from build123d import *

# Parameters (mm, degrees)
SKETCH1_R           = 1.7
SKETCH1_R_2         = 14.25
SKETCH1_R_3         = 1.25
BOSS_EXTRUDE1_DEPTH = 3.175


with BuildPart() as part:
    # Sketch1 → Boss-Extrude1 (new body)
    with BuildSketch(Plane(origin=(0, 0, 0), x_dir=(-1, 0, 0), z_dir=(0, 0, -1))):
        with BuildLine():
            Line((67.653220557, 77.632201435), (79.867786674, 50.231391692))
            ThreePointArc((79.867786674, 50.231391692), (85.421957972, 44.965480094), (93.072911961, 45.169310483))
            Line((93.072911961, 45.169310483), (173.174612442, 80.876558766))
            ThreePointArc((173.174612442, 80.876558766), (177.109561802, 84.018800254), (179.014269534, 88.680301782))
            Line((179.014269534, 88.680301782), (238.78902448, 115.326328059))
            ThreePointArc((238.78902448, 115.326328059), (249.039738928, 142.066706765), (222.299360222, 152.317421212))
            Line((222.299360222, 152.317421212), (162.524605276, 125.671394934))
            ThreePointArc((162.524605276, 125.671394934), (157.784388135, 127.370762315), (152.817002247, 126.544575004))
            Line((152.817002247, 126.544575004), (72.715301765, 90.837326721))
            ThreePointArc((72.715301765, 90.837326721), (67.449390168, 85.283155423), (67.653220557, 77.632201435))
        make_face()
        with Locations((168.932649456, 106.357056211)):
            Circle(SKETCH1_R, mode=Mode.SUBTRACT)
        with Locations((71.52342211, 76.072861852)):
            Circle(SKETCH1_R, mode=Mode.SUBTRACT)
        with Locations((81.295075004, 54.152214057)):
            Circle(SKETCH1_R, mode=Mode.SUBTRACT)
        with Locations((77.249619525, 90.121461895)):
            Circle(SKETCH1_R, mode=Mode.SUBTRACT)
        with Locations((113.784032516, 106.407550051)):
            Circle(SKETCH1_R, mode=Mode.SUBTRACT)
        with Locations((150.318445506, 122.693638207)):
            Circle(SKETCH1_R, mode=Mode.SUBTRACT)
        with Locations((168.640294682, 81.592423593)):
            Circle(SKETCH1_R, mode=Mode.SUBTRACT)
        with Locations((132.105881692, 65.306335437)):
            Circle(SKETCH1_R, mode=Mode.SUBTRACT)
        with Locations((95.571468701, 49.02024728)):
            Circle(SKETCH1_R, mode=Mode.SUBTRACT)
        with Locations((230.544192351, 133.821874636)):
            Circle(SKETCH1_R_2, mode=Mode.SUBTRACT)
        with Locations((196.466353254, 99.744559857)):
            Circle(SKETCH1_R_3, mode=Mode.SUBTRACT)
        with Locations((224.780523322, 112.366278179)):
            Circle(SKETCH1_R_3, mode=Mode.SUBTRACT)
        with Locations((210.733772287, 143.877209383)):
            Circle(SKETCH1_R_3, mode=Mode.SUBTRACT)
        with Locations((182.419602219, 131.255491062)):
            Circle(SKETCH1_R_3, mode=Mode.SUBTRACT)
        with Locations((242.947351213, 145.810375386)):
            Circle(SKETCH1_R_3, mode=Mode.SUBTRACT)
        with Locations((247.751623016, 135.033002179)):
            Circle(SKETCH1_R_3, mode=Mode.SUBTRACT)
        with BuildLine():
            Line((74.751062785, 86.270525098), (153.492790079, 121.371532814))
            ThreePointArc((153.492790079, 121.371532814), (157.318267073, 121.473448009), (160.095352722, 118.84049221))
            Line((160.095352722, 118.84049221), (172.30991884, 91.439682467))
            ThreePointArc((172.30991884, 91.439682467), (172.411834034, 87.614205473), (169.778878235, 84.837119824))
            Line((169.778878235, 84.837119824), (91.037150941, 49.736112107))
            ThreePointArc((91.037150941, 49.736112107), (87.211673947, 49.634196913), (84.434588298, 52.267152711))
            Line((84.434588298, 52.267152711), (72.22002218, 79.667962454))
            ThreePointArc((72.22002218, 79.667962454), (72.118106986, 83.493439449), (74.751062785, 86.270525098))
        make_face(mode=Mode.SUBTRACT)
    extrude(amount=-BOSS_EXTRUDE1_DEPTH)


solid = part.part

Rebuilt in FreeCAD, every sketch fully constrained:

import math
import FreeCAD as App
import Part
import Sketcher

V = App.Vector

doc = App.newDocument("Part")
params = doc.addObject("Spreadsheet::Sheet", "Params")
for row, (alias, value) in enumerate([
    ("sketch1_radius", "10 mm"),
    ("sketch1_radius2", "5 mm"),
    ("sketch1_diameter", "3.4 mm"),
    ("sketch1_diameter2", "2.5 mm"),
    ("sketch1_diameter3", "28.5 mm"),
    ("pad1_length", "3.175 mm"),
], start=1):
    params.set(f"A{row}", alias)
    params.set(f"B{row}", "=" + value)
    params.setAlias(f"B{row}", alias)

body = doc.addObject("PartDesign::Body", "Body")

# Sketch on XY plane
sketch1 = doc.addObject("Sketcher::SketchObject", "Sketch")
body.addObject(sketch1)
sketch1.AttachmentSupport = (doc.XY_Plane, [""])
sketch1.MapMode = "FlatFace"
sketch1.addGeometry([
    Part.LineSegment(V(-67.7, 77.6, 0), V(-79.9, 50.2, 0)),  # 0
    Part.ArcOfCircle(Part.Circle(V(-89, 54.3, 0), V(0, 0, 1), 10), math.radians(-114), math.radians(-24)),  # 1
    Part.LineSegment(V(-93.1, 45.2, 0), V(-173.2, 80.9, 0)),  # 2
    Part.ArcOfCircle(Part.Circle(V(-169.1, 90, 0), V(0, 0, 1), 10), math.radians(-172), math.radians(-114)),  # 3
    Part.LineSegment(V(-179, 88.7, 0), V(-238.8, 115.3, 0)),  # 4
    Part.ArcOfCircle(Part.Circle(V(-230.5, 133.8, 0), V(0, 0, 1), 20.2), math.radians(66), math.radians(246)),  # 5
    Part.LineSegment(V(-222.3, 152.3, 0), V(-162.5, 125.7, 0)),  # 6
    Part.ArcOfCircle(Part.Circle(V(-156.9, 117.4, 0), V(0, 0, 1), 10), math.radians(66), math.radians(124)),  # 7
    Part.LineSegment(V(-152.8, 126.5, 0), V(-72.7, 90.8, 0)),  # 8
    Part.ArcOfCircle(Part.Circle(V(-76.8, 81.7, 0), V(0, 0, 1), 10), math.radians(-24), math.radians(66)),  # 9
    Part.Circle(V(-81.3, 54.2, 0), V(0, 0, 1), 1.7),  # 10
    Part.Circle(V(-95.6, 49, 0), V(0, 0, 1), 1.7),  # 11
    Part.Circle(V(-132.1, 65.3, 0), V(0, 0, 1), 1.7),  # 12
    Part.Circle(V(-71.5, 76.1, 0), V(0, 0, 1), 1.7),  # 13
    Part.Circle(V(-77.2, 90.1, 0), V(0, 0, 1), 1.7),  # 14
    Part.ArcOfCircle(Part.Circle(V(-76.8, 81.7, 0), V(0, 0, 1), 5), math.radians(-24), math.radians(66)),  # 15
    Part.LineSegment(V(-74.8, 86.3, 0), V(-153.5, 121.4, 0)),  # 16
    Part.ArcOfCircle(Part.Circle(V(-155.5, 116.8, 0), V(0, 0, 1), 5), math.radians(66), math.radians(156)),  # 17
    Part.LineSegment(V(-160.1, 118.8, 0), V(-172.3, 91.4, 0)),  # 18
    Part.ArcOfCircle(Part.Circle(V(-167.7, 89.4, 0), V(0, 0, 1), 5), math.radians(156), math.radians(246)),  # 19
    Part.LineSegment(V(-169.8, 84.8, 0), V(-91, 49.7, 0)),  # 20
    Part.ArcOfCircle(Part.Circle(V(-89, 54.3, 0), V(0, 0, 1), 5), math.radians(-114), math.radians(-24)),  # 21
    Part.LineSegment(V(-84.4, 52.3, 0), V(-72.2, 79.7, 0)),  # 22
    Part.Circle(V(-168.6, 81.6, 0), V(0, 0, 1), 1.7),  # 23
    Part.Circle(V(-113.8, 106.4, 0), V(0, 0, 1), 1.7),  # 24
    Part.Circle(V(-150.3, 122.7, 0), V(0, 0, 1), 1.7),  # 25
    Part.Circle(V(-168.9, 106.4, 0), V(0, 0, 1), 1.7),  # 26
    Part.Circle(V(-196.5, 99.7, 0), V(0, 0, 1), 1.2),  # 27
    Part.Circle(V(-224.8, 112.4, 0), V(0, 0, 1), 1.2),  # 28
    Part.Circle(V(-182.4, 131.3, 0), V(0, 0, 1), 1.2),  # 29
    Part.Circle(V(-230.5, 133.8, 0), V(0, 0, 1), 14.2),  # 30
    Part.Circle(V(-247.8, 135, 0), V(0, 0, 1), 1.2),  # 31
    Part.Circle(V(-210.7, 143.9, 0), V(0, 0, 1), 1.2),  # 32
    Part.Circle(V(-242.9, 145.8, 0), V(0, 0, 1), 1.2),  # 33
], False)
sketch1.addConstraint([
    Sketcher.Constraint("Tangent", 0, 2, 1, 2),
    Sketcher.Constraint("Tangent", 1, 1, 2, 1),
    Sketcher.Constraint("Tangent", 2, 2, 3, 2),
    Sketcher.Constraint("Coincident", 3, 1, 4, 1),
    Sketcher.Constraint("Tangent", 4, 2, 5, 2),
    Sketcher.Constraint("Tangent", 5, 1, 6, 1),
    Sketcher.Constraint("Coincident", 6, 2, 7, 2),
    Sketcher.Constraint("Tangent", 7, 1, 8, 1),
    Sketcher.Constraint("Tangent", 8, 2, 9, 2),
    Sketcher.Constraint("Tangent", 9, 1, 0, 1),
    Sketcher.Constraint("Tangent", 15, 2, 16, 1),
    Sketcher.Constraint("Tangent", 16, 2, 17, 1),
    Sketcher.Constraint("Tangent", 17, 2, 18, 1),
    Sketcher.Constraint("Tangent", 18, 2, 19, 1),
    Sketcher.Constraint("Tangent", 19, 2, 20, 1),
    Sketcher.Constraint("Tangent", 20, 2, 21, 1),
    Sketcher.Constraint("Tangent", 21, 2, 22, 1),
    Sketcher.Constraint("Tangent", 22, 2, 15, 1),
    Sketcher.Constraint("Coincident", 15, 3, 9, 3),
    Sketcher.Constraint("Coincident", 21, 3, 1, 3),
    Sketcher.Constraint("Coincident", 30, 3, 5, 3),
    Sketcher.Constraint("Equal", 1, 3),
    Sketcher.Constraint("Equal", 3, 7),
    Sketcher.Constraint("Equal", 7, 9),
    Sketcher.Constraint("Equal", 10, 11),
    Sketcher.Constraint("Equal", 11, 12),
    Sketcher.Constraint("Equal", 12, 13),
    Sketcher.Constraint("Equal", 13, 14),
    Sketcher.Constraint("Equal", 15, 17),
    Sketcher.Constraint("Equal", 17, 19),
    Sketcher.Constraint("Equal", 19, 21),
    Sketcher.Constraint("Equal", 14, 23),
    Sketcher.Constraint("Equal", 23, 24),
    Sketcher.Constraint("Equal", 24, 25),
    Sketcher.Constraint("Equal", 25, 26),
    Sketcher.Constraint("Equal", 27, 28),
    Sketcher.Constraint("Equal", 28, 29),
    Sketcher.Constraint("Equal", 29, 31),
    Sketcher.Constraint("Equal", 31, 32),
    Sketcher.Constraint("Equal", 32, 33),
    Sketcher.Constraint("Perpendicular", 0, 2),
    Sketcher.Constraint("Parallel", 2, 4),
    Sketcher.Constraint("Parallel", 4, 6),
    Sketcher.Constraint("Parallel", 6, 8),
    Sketcher.Constraint("Parallel", 8, 16),
    Sketcher.Constraint("Perpendicular", 16, 18),
    Sketcher.Constraint("Perpendicular", 18, 20),
    Sketcher.Constraint("Equal", 4, 6),
    Sketcher.Constraint("Equal", 2, 8),
    Sketcher.Constraint("Radius", 1, 10.0),
    Sketcher.Constraint("Radius", 15, 5.0),
    Sketcher.Constraint("Diameter", 10, 3.4),
    Sketcher.Constraint("Diameter", 27, 2.5),
    Sketcher.Constraint("Diameter", 30, 28.5),
    Sketcher.Constraint("Radius", 5, 20.25),
    Sketcher.Constraint("Distance", 0, 30.0),
    Sketcher.Constraint("Distance", 2, 87.7),
    Sketcher.Constraint("DistanceY", 2, 2, 27, 3, 18.868001),
    Sketcher.Constraint("DistanceY", -1, 1, 3, 1, 88.680302),
    Sketcher.Constraint("DistanceX", 8, 2, -1, 1, 72.715302),
    Sketcher.Constraint("DistanceY", -1, 1, 9, 1, 77.632201),
    Sketcher.Constraint("DistanceX", 5, 3, 3, 3, 61.441102),
    Sketcher.Constraint("DistanceY", 10, 3, 1, 3, 0.1507),
    Sketcher.Constraint("DistanceX", 9, 3, 13, 3, 5.263402),
    Sketcher.Constraint("DistanceY", 13, 3, 14, 3, 14.0486),
    Sketcher.Constraint("DistanceX", 26, 3, 17, 3, 13.404098),
    Sketcher.Constraint("DistanceX", 31, 3, 28, 3, 22.9711),
    Sketcher.Constraint("DistanceY", 5, 3, 33, 3, 11.988501),
    Sketcher.Constraint("DistanceX", 4, 2, 28, 3, 14.008501),
    Sketcher.Constraint("DistanceX", 14, 3, 9, 1, 9.596399),
    Sketcher.Constraint("DistanceY", 13, 3, 22, 2, 3.595101),
    Sketcher.Constraint("DistanceX", 11, 3, -1, 1, 95.571469),
    Sketcher.Constraint("DistanceX", 12, 3, -1, 1, 132.105882),
    Sketcher.Constraint("DistanceX", 17, 3, -1, 1, 155.528551),
    Sketcher.Constraint("DistanceY", -1, 1, 24, 3, 106.40755),
    Sketcher.Constraint("DistanceY", -1, 1, 25, 3, 122.693638),
    Sketcher.Constraint("DistanceY", -1, 1, 28, 3, 112.366278),
    Sketcher.Constraint("DistanceY", -1, 1, 29, 3, 131.255491),
    Sketcher.Constraint("DistanceY", -1, 1, 32, 3, 143.877209),
    Sketcher.Constraint("DistanceX", 33, 3, -1, 1, 242.947351),
    Sketcher.Constraint("DistanceX", 10, 3, 9, 3, 4.508251),
    Sketcher.Constraint("DistanceY", 11, 3, 12, 3, 16.286088),
    Sketcher.Constraint("DistanceY", 1, 3, 12, 3, 11.003422),
    Sketcher.Constraint("DistanceY", 23, 3, 3, 3, 8.417738),
    Sketcher.Constraint("DistanceX", 23, 3, 7, 3, 11.75177),
    Sketcher.Constraint("DistanceX", 17, 3, 24, 3, 41.744519),
    Sketcher.Constraint("DistanceX", 7, 3, 25, 3, 6.570079),
    Sketcher.Constraint("DistanceY", 26, 3, 25, 3, 16.336582),
    Sketcher.Constraint("DistanceX", 27, 3, 23, 3, 27.826059),
    Sketcher.Constraint("DistanceX", 29, 3, 17, 3, 26.891051),
    Sketcher.Constraint("DistanceY", 29, 3, 31, 3, 3.777511),
    Sketcher.Constraint("DistanceX", 30, 3, 32, 3, 19.81042),
])
sketch1.setExpression("Constraints[49]", "Params.sketch1_radius")
sketch1.setExpression("Constraints[50]", "Params.sketch1_radius2")
sketch1.setExpression("Constraints[51]", "Params.sketch1_diameter")
sketch1.setExpression("Constraints[52]", "Params.sketch1_diameter2")
sketch1.setExpression("Constraints[53]", "Params.sketch1_diameter3")
pad1 = doc.addObject("PartDesign::Pad", "Pad")
body.addObject(pad1)
pad1.Profile = sketch1
pad1.setExpression("Length", "Params.pad1_length")

doc.recompute()
